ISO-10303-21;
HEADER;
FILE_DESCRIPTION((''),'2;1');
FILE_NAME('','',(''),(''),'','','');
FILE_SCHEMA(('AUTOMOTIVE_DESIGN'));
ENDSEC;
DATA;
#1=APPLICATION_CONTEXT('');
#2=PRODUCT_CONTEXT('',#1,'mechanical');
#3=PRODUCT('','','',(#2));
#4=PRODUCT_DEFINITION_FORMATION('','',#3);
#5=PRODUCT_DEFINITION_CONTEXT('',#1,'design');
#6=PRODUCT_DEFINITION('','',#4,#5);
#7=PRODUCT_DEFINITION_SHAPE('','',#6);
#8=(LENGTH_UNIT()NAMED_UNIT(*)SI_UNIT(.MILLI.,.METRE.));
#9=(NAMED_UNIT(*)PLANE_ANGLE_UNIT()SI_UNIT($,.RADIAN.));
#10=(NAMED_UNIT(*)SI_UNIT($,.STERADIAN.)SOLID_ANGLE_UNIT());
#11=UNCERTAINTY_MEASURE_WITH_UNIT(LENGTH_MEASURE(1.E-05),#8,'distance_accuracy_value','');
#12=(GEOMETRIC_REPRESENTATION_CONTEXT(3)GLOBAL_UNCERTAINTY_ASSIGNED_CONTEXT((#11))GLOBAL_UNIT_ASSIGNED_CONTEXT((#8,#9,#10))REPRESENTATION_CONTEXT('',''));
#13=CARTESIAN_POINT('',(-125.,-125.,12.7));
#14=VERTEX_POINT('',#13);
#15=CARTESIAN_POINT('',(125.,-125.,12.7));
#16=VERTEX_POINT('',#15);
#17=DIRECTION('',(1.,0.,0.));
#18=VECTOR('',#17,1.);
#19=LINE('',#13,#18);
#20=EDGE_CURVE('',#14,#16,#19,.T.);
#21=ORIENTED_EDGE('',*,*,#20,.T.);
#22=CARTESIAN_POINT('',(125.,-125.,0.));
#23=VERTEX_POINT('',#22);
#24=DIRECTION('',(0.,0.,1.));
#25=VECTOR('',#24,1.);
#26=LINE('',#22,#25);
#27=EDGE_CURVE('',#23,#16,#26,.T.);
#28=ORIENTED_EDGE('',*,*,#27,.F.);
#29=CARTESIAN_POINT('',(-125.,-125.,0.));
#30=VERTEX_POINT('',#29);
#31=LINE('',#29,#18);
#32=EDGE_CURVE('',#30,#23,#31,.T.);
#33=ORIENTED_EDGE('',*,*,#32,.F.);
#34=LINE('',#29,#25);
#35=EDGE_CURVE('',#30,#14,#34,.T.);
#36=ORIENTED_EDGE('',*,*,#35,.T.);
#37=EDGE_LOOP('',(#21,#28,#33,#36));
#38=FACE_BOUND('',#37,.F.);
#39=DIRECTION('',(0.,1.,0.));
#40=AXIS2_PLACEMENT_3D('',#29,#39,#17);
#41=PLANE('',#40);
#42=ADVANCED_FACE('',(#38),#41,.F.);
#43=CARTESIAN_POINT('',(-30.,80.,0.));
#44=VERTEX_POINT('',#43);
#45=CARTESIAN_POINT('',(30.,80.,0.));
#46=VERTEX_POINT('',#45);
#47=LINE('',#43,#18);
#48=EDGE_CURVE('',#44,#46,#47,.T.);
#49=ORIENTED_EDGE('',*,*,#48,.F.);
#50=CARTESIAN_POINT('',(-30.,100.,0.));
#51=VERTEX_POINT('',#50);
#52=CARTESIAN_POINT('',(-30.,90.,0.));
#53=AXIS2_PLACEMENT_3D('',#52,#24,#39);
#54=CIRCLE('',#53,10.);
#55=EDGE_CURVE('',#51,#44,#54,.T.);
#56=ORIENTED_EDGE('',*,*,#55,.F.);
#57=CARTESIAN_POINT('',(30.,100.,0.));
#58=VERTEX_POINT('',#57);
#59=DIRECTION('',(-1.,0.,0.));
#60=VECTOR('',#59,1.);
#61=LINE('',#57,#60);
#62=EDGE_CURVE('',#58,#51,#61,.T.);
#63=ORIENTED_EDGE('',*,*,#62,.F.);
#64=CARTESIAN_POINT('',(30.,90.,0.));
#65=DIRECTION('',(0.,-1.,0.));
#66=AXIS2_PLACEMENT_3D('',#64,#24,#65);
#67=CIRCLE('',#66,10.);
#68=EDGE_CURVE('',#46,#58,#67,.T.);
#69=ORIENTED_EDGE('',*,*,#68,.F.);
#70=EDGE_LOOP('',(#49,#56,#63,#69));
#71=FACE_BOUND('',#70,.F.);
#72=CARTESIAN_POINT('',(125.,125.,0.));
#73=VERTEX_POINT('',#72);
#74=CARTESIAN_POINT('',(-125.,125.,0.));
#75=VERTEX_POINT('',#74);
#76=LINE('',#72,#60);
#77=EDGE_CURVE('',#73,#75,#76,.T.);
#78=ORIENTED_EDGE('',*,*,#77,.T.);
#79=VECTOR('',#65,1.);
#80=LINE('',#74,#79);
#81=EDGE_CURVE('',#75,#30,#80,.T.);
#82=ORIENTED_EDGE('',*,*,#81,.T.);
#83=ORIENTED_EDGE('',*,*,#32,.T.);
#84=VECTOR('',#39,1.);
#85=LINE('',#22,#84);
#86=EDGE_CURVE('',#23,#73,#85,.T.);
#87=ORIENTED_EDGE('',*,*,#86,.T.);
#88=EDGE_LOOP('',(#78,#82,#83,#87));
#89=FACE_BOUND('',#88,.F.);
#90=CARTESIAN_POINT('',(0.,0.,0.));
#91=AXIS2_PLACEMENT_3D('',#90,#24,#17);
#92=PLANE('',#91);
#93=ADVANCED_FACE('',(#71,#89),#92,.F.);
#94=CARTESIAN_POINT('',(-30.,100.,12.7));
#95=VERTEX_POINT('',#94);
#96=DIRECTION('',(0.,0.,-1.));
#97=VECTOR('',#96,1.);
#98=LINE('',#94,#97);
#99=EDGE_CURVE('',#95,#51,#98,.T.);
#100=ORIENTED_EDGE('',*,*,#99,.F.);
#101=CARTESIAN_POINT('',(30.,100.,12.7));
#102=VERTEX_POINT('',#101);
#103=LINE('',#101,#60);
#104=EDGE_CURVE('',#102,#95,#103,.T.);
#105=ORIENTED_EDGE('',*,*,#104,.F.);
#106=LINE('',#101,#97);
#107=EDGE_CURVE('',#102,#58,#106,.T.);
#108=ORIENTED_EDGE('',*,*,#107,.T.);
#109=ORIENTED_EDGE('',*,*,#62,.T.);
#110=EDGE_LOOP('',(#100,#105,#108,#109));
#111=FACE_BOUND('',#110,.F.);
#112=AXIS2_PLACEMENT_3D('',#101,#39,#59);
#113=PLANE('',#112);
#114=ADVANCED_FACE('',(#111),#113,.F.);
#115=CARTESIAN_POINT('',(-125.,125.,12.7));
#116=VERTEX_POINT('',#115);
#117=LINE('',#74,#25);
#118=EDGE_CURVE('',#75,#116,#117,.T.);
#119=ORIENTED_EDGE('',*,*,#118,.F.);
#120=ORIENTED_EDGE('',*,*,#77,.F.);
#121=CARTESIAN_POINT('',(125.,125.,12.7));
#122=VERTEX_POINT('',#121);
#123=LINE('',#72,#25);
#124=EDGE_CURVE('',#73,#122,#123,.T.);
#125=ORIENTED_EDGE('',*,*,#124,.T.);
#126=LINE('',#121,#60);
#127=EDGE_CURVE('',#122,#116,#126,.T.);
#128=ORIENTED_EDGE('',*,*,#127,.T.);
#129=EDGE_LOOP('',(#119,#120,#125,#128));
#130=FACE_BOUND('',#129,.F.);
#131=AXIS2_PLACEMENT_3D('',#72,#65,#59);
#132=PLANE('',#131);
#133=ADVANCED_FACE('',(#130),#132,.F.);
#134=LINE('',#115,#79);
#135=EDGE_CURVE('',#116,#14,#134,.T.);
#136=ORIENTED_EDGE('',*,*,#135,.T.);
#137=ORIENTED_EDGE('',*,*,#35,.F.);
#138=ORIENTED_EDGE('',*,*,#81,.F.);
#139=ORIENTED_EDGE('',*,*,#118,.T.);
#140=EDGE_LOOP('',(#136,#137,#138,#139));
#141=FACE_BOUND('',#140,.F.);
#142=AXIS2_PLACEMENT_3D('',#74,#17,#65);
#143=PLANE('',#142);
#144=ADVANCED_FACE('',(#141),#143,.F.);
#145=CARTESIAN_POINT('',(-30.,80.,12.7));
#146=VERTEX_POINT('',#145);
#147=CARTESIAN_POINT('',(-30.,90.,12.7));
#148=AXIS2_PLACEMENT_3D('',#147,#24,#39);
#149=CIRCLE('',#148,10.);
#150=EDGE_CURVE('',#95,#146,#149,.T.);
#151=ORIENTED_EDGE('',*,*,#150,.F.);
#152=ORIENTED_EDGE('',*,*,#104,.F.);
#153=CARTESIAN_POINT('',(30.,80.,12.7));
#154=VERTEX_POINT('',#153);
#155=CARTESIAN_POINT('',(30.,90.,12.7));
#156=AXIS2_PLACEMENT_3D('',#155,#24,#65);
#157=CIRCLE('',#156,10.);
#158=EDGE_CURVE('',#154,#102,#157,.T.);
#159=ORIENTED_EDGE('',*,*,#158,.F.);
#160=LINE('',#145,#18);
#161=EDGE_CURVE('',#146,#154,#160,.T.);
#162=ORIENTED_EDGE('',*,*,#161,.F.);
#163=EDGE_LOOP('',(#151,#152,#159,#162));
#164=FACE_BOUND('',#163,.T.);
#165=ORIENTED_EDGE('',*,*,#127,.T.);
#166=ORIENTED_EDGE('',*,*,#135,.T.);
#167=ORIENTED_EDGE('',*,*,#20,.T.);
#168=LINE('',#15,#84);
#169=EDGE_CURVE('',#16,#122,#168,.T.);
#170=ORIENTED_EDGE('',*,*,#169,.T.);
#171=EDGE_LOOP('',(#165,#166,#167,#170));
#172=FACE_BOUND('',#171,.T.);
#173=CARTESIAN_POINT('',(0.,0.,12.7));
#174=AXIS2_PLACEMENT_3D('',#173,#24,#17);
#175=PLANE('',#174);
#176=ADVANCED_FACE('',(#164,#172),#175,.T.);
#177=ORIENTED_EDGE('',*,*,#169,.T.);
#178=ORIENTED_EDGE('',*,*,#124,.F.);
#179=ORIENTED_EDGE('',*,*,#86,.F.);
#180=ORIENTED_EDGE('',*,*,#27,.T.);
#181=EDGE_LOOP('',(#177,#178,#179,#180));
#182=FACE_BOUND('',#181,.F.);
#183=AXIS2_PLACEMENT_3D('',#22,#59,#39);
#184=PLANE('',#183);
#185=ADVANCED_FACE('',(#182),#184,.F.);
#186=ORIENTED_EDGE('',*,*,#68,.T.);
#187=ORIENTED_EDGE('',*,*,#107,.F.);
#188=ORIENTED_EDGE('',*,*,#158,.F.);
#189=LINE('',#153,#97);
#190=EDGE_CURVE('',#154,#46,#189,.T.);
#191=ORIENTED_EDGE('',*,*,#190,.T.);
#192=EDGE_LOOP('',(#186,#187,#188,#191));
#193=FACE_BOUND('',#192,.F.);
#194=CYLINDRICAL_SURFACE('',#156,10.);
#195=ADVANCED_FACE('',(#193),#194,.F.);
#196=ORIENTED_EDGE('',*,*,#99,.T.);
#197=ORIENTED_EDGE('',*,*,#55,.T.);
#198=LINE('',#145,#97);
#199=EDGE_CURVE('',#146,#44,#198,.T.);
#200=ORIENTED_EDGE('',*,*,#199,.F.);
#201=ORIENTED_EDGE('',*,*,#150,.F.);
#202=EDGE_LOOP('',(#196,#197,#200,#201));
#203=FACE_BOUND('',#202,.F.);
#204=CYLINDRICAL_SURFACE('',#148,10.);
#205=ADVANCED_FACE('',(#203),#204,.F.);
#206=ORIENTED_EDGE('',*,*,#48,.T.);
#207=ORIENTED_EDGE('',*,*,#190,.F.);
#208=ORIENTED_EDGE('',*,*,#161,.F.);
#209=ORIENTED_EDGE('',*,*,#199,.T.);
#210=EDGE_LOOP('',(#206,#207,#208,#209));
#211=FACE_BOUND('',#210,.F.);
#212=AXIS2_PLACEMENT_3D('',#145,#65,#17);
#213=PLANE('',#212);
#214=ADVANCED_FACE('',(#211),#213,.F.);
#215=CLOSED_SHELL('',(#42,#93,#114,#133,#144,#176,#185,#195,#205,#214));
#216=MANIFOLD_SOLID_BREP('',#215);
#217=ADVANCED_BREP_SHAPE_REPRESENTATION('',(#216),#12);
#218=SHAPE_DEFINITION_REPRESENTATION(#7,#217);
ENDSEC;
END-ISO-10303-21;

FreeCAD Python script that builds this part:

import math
import FreeCAD as App
import Part
import Sketcher
from FreeCAD import Vector


def add_polygon(sketch, points):
    """Adds a closed chain of lines whose ends are joined by coincident constraints."""
    first, n = sketch.GeometryCount, len(points)
    for a, b in zip(points, points[1:] + points[:1]):
        sketch.addGeometry(Part.LineSegment(App.Vector(*a, 0), App.Vector(*b, 0)), False)
    for i in range(n):
        sketch.addConstraint(Sketcher.Constraint("Coincident", first + i, 2, first + (i + 1) % n, 1))

doc = App.newDocument("Part")
body = doc.addObject("PartDesign::Body", "Body")

sketch1 = body.newObject("Sketcher::SketchObject", "Sketch")
sketch1.AttachmentSupport = (doc.getObject("XY_Plane"), [""])
sketch1.MapMode = "FlatFace"
add_polygon(sketch1, [(-125, 125), (-125, -125), (125, -125), (125, 125)])
sketch1.addConstraint(Sketcher.Constraint("Vertical", 0))
sketch1.addConstraint(Sketcher.Constraint("Horizontal", 1))
sketch1.addConstraint(Sketcher.Constraint("Vertical", 2))
sketch1.addConstraint(Sketcher.Constraint("Horizontal", 3))
sketch1.addConstraint(Sketcher.Constraint("Symmetric", 0, 2, 2, 2, -1, 1))
sketch1.addConstraint(Sketcher.Constraint("Equal", 3, 0))
sketch1.addConstraint(Sketcher.Constraint("DistanceX", 1, 1, 1, 2, 250.0))
pad1 = body.newObject("PartDesign::Pad", "Pad")
pad1.Profile = sketch1
pad1.Length = 12.7

sketch2 = body.newObject("Sketcher::SketchObject", "Sketch001")
sketch2.AttachmentSupport = (doc.getObject("XY_Plane"), [""])
sketch2.MapMode = "FlatFace"
sketch2.AttachmentOffset = App.Placement(Vector(0, 0, 12.7), App.Rotation())
sketch2.addGeometry(Part.ArcOfCircle(Part.Circle(Vector(-30, 90, 0), Vector(0, 0, 1), 10), math.radians(90), math.radians(270)), False)
sketch2.addGeometry(Part.LineSegment(Vector(-30, 80, 0), Vector(30, 80, 0)), False)
sketch2.addGeometry(Part.ArcOfCircle(Part.Circle(Vector(30, 90, 0), Vector(0, 0, 1), 10), math.radians(-90), math.radians(90)), False)
sketch2.addGeometry(Part.LineSegment(Vector(30, 100, 0), Vector(-30, 100, 0)), False)
sketch2.addConstraint(Sketcher.Constraint("Tangent", 0, 2, 1, 1))
sketch2.addConstraint(Sketcher.Constraint("Tangent", 1, 2, 2, 1))
sketch2.addConstraint(Sketcher.Constraint("Tangent", 2, 2, 3, 1))
sketch2.addConstraint(Sketcher.Constraint("Tangent", 3, 2, 0, 1))
sketch2.addConstraint(Sketcher.Constraint("Horizontal", 1))
sketch2.addConstraint(Sketcher.Constraint("Horizontal", 3))
sketch2.addConstraint(Sketcher.Constraint("Radius", 0, 10.0))
sketch2.addConstraint(Sketcher.Constraint("DistanceX", 0, 3, -1, 1, 30.0))
sketch2.addConstraint(Sketcher.Constraint("DistanceX", -1, 1, 2, 3, 30.0))
sketch2.addConstraint(Sketcher.Constraint("DistanceY", -1, 1, 0, 3, 90.0))
pocket1 = body.newObject("PartDesign::Pocket", "Pocket")
pocket1.Profile = sketch2
pocket1.Length = 12.7

doc.recompute()
